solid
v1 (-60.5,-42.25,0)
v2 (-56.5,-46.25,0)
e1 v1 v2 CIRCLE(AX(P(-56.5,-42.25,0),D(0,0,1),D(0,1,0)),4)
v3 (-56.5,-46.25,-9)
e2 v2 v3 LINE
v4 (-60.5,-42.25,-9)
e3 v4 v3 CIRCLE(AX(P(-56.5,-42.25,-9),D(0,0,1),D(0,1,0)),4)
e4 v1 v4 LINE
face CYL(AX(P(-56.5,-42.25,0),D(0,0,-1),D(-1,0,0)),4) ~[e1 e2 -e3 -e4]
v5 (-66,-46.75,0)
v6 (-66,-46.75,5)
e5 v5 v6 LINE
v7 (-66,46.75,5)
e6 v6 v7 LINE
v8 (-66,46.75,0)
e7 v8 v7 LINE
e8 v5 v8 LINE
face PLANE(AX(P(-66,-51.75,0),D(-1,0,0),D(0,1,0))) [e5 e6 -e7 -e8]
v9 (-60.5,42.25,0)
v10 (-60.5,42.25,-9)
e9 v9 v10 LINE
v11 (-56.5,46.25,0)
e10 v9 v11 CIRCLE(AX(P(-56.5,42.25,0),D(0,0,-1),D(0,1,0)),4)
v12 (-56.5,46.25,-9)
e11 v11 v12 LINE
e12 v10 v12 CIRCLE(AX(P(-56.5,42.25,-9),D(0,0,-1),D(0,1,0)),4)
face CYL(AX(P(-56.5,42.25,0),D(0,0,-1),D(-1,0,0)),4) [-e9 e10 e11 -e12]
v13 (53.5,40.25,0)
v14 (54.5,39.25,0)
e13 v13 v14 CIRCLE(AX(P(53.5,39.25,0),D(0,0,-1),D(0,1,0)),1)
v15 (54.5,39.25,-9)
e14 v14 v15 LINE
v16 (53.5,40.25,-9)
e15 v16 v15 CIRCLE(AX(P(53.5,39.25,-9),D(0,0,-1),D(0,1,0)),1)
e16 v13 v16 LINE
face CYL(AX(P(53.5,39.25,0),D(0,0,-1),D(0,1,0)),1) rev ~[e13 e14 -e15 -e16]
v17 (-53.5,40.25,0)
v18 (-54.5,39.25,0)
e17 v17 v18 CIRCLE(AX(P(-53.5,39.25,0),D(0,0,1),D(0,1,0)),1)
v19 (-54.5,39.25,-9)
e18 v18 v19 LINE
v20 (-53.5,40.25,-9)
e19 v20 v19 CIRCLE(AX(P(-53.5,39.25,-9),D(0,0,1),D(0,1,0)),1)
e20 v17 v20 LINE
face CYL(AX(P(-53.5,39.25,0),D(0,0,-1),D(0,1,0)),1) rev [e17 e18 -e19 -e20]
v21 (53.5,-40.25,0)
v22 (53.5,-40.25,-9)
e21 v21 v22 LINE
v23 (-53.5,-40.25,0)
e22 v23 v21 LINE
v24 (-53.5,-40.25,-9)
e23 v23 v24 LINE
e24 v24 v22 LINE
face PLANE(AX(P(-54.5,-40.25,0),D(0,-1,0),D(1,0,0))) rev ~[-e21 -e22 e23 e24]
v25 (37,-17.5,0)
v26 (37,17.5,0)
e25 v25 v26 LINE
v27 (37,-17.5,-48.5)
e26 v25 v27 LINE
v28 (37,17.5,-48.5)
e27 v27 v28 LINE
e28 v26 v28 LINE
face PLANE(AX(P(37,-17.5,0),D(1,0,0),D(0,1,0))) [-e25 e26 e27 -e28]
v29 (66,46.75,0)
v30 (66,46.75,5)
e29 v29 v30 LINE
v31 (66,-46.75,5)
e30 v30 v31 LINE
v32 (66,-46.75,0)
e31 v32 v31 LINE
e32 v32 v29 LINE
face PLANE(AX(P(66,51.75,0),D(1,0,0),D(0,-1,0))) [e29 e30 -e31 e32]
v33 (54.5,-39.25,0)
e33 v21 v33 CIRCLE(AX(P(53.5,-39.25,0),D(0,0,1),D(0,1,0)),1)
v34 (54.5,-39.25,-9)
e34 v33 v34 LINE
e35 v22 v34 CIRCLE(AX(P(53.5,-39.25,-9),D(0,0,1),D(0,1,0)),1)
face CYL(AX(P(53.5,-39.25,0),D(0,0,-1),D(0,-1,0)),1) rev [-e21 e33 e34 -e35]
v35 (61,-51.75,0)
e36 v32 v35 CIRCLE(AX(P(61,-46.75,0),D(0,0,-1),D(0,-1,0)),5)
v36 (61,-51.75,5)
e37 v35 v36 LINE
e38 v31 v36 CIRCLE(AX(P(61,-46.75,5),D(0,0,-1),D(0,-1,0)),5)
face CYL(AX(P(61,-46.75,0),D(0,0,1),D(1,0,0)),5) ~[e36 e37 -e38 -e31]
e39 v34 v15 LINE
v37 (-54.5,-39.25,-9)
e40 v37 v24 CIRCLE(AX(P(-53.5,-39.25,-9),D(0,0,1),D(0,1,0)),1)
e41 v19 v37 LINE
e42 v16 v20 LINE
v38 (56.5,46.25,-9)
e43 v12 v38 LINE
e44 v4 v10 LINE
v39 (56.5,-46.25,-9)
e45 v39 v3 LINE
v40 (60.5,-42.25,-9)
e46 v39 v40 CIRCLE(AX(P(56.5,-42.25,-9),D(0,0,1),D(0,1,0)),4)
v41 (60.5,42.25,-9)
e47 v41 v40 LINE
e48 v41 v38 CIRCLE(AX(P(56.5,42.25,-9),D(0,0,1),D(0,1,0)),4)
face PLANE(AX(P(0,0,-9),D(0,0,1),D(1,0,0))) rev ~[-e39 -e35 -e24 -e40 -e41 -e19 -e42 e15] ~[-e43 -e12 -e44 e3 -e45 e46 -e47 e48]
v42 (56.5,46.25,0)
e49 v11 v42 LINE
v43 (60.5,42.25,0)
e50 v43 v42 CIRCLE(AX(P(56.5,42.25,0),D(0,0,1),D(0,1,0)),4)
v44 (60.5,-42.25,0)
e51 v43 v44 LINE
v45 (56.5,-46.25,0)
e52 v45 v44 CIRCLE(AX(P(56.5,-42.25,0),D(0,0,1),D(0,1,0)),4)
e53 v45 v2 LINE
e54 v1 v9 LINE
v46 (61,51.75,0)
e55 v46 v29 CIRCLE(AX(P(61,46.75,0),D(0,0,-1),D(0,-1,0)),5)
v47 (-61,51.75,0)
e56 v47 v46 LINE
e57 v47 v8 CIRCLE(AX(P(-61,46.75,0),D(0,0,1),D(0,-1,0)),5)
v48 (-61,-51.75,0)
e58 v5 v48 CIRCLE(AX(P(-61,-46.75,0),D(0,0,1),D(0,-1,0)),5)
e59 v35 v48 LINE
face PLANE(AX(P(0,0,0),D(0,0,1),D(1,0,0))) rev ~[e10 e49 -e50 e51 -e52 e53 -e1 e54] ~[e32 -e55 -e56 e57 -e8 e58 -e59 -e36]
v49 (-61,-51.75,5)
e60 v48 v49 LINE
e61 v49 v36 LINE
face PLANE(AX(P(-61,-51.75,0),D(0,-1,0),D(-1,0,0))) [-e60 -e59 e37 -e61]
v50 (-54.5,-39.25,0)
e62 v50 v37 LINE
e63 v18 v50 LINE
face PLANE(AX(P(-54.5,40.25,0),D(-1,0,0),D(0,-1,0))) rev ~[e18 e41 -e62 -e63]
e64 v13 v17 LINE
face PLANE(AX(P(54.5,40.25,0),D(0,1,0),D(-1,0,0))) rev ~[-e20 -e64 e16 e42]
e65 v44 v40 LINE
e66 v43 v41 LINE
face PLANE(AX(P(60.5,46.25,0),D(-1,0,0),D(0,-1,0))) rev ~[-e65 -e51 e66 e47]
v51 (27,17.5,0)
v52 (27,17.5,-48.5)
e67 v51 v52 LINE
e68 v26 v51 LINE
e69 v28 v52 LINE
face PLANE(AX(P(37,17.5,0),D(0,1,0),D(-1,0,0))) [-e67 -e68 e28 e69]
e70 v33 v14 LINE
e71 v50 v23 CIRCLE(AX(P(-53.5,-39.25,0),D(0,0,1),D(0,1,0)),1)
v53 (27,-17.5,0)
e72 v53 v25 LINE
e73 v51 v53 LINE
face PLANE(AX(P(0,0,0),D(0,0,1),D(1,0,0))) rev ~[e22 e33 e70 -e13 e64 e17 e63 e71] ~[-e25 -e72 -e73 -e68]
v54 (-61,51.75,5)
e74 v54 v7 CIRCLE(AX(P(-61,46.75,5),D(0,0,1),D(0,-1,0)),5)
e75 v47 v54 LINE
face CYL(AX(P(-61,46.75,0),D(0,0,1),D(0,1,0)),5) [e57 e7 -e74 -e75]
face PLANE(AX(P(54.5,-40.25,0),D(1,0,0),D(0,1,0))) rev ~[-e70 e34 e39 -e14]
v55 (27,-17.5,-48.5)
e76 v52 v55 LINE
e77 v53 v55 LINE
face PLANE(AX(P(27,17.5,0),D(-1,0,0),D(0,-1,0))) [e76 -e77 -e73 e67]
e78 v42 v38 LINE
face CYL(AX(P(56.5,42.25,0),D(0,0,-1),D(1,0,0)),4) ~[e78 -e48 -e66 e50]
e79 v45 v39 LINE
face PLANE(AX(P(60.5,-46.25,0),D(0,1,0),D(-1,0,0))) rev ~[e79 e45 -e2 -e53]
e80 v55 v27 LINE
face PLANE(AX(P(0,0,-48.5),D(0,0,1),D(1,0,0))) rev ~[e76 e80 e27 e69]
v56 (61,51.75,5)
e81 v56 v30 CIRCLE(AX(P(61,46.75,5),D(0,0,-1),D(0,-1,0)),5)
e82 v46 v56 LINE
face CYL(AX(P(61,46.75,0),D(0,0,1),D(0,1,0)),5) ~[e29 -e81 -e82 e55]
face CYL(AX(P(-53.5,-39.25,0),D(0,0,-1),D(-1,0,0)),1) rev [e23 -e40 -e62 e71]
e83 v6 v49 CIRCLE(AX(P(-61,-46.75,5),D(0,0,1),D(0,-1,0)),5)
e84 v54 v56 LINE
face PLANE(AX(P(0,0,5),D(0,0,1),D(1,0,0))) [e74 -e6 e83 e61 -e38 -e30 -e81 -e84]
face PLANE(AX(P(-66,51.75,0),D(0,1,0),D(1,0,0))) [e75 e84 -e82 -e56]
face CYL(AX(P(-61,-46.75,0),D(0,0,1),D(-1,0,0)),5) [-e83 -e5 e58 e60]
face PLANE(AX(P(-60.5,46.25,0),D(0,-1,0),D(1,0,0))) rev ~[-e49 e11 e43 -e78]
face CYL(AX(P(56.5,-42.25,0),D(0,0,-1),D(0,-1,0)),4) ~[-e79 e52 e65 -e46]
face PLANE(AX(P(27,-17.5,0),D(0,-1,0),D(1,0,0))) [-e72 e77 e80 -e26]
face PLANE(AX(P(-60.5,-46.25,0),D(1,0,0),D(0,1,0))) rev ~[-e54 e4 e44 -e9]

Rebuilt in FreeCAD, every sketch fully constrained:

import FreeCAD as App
import Part
import Sketcher

V = App.Vector
Q = App.Units.Quantity


def edges_at(feature, points):
    """Names of the edges that pass closest to the given points."""
    edges = feature.Shape.Edges
    near = lambda p: min(range(len(edges)), key=lambda i: edges[i].distToShape(Part.Vertex(*p))[0])
    return sorted({f"Edge{near(p) + 1}" for p in points})

doc = App.newDocument("Part")
body = doc.addObject("PartDesign::Body", "Body")

# Sketch on XY plane
sketch1 = body.newObject("Sketcher::SketchObject", "Sketch")
sketch1.AttachmentSupport = (doc.getObject("XY_Plane"), [""])
sketch1.MapMode = "FlatFace"
sketch1.addGeometry([
    Part.LineSegment(V(66, 51.75, 0), V(-66, 51.75, 0)),
    Part.LineSegment(V(-66, 51.75, 0), V(-66, -51.75, 0)),
    Part.LineSegment(V(-66, -51.75, 0), V(66, -51.75, 0)),
    Part.LineSegment(V(66, -51.75, 0), V(66, 51.75, 0)),
], False)
sketch1.addConstraint([
    Sketcher.Constraint("Coincident", 0, 2, 1, 1),
    Sketcher.Constraint("Coincident", 1, 2, 2, 1),
    Sketcher.Constraint("Coincident", 2, 2, 3, 1),
    Sketcher.Constraint("Coincident", 3, 2, 0, 1),
    Sketcher.Constraint("Horizontal", 0),
    Sketcher.Constraint("Vertical", 1),
    Sketcher.Constraint("Horizontal", 2),
    Sketcher.Constraint("Vertical", 3),
    Sketcher.Constraint("Symmetric", 0, 2, 2, 2, -1, 1),
    Sketcher.Constraint("DistanceX", 0, 2, 0, 1, Q("132 mm")),
    Sketcher.Constraint("DistanceY", 1, 2, 1, 1, Q("103.5 mm")),
])
pad1 = body.newObject("PartDesign::Pad", "Pad")
pad1.Profile = sketch1
pad1.Length = 5

# Sketch on XY plane
sketch2 = body.newObject("Sketcher::SketchObject", "Sketch001")
sketch2.AttachmentSupport = (doc.getObject("XY_Plane"), [""])
sketch2.MapMode = "FlatFace"
sketch2.addGeometry([
    Part.LineSegment(V(60.5, 46.25, 0), V(-60.5, 46.25, 0)),  # 0
    Part.LineSegment(V(-60.5, 46.25, 0), V(-60.5, -46.25, 0)),  # 1
    Part.LineSegment(V(-60.5, -46.25, 0), V(60.5, -46.25, 0)),  # 2
    Part.LineSegment(V(60.5, -46.25, 0), V(60.5, 46.25, 0)),  # 3
    Part.LineSegment(V(-54.5, 40.25, 0), V(54.5, 40.25, 0)),  # 4
    Part.LineSegment(V(54.5, 40.25, 0), V(54.5, -40.25, 0)),  # 5
    Part.LineSegment(V(54.5, -40.25, 0), V(-54.5, -40.25, 0)),  # 6
    Part.LineSegment(V(-54.5, -40.25, 0), V(-54.5, 40.25, 0)),  # 7
], False)
sketch2.addConstraint([
    Sketcher.Constraint("Coincident", 0, 2, 1, 1),
    Sketcher.Constraint("Coincident", 1, 2, 2, 1),
    Sketcher.Constraint("Coincident", 2, 2, 3, 1),
    Sketcher.Constraint("Coincident", 3, 2, 0, 1),
    Sketcher.Constraint("Coincident", 4, 2, 5, 1),
    Sketcher.Constraint("Coincident", 5, 2, 6, 1),
    Sketcher.Constraint("Coincident", 6, 2, 7, 1),
    Sketcher.Constraint("Coincident", 7, 2, 4, 1),
    Sketcher.Constraint("Horizontal", 0),
    Sketcher.Constraint("Vertical", 1),
    Sketcher.Constraint("Horizontal", 2),
    Sketcher.Constraint("Vertical", 3),
    Sketcher.Constraint("Horizontal", 4),
    Sketcher.Constraint("Vertical", 5),
    Sketcher.Constraint("Horizontal", 6),
    Sketcher.Constraint("Vertical", 7),
    Sketcher.Constraint("Symmetric", 0, 2, 2, 2, -1, 1),
    Sketcher.Constraint("Symmetric", 4, 2, 6, 2, -1, 1),
    Sketcher.Constraint("DistanceX", 4, 2, 3, 2, Q("6 mm")),
    Sketcher.Constraint("DistanceY", 4, 2, 3, 2, Q("6 mm")),
    Sketcher.Constraint("DistanceX", 0, 2, 0, 1, Q("121 mm")),
    Sketcher.Constraint("DistanceY", 1, 2, 1, 1, Q("92.5 mm")),
])
pad2 = body.newObject("PartDesign::Pad", "Pad001")
pad2.Profile = sketch2
pad2.Length = 9
pad2.Reversed = True

# Sketch on XY plane
sketch3 = body.newObject("Sketcher::SketchObject", "Sketch002")
sketch3.AttachmentSupport = (doc.getObject("XY_Plane"), [""])
sketch3.MapMode = "FlatFace"
sketch3.addGeometry([
    Part.LineSegment(V(37, -17.5, 0), V(37, 17.5, 0)),
    Part.LineSegment(V(37, 17.5, 0), V(27, 17.5, 0)),
    Part.LineSegment(V(27, 17.5, 0), V(27, -17.5, 0)),
    Part.LineSegment(V(27, -17.5, 0), V(37, -17.5, 0)),
], False)
sketch3.addConstraint([
    Sketcher.Constraint("Coincident", 0, 2, 1, 1),
    Sketcher.Constraint("Coincident", 1, 2, 2, 1),
    Sketcher.Constraint("Coincident", 2, 2, 3, 1),
    Sketcher.Constraint("Coincident", 3, 2, 0, 1),
    Sketcher.Constraint("Vertical", 0),
    Sketcher.Constraint("Horizontal", 1),
    Sketcher.Constraint("Vertical", 2),
    Sketcher.Constraint("Horizontal", 3),
    Sketcher.Constraint("DistanceX", 1, 2, 1, 1, Q("10 mm")),
    Sketcher.Constraint("DistanceY", 0, 1, 0, 2, Q("35 mm")),
    Sketcher.Constraint("DistanceX", -1, 1, 0, 2, Q("37 mm")),
    Sketcher.Constraint("DistanceY", -1, 1, 0, 2, Q("17.5 mm")),
])
pad3 = body.newObject("PartDesign::Pad", "Pad002")
pad3.Profile = sketch3
pad3.Length = 48.5
pad3.Reversed = True
doc.recompute()

fillet = body.newObject("PartDesign::Fillet", "Fillet")
fillet.Base = (pad3, edges_at(pad3, [
    (66, 51.75, 2.5),
    (-66, 51.75, 2.5),
    (66, -51.75, 2.5),
    (-66, -51.75, 2.5),
]))
fillet.Radius = 5
doc.recompute()

fillet2 = body.newObject("PartDesign::Fillet", "Fillet001")
fillet2.Base = (fillet, edges_at(fillet, [
    (-60.5, -46.25, -4.5),
    (60.5, -46.25, -4.5),
    (60.5, 46.25, -4.5),
    (-60.5, 46.25, -4.5),
]))
fillet2.Radius = 4
doc.recompute()

fillet3 = body.newObject("PartDesign::Fillet", "Fillet002")
fillet3.Base = (fillet2, edges_at(fillet2, [
    (54.5, -40.25, -4.5),
    (-54.5, -40.25, -4.5),
    (54.5, 40.25, -4.5),
    (-54.5, 40.25, -4.5),
]))
fillet3.Radius = 1

doc.recompute()
